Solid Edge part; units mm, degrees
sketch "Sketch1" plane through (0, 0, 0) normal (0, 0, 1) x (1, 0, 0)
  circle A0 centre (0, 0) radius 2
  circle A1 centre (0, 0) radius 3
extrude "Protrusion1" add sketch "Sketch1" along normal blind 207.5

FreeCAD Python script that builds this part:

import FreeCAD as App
import Part
import Sketcher
Q = App.Units.Quantity

doc = App.newDocument("Part")
body = doc.addObject("PartDesign::Body", "Body")

sketch1 = body.newObject("Sketcher::SketchObject", "Sketch")
sketch1.AttachmentSupport = (doc.getObject("XY_Plane"), [""])
sketch1.MapMode = "FlatFace"
sketch1.addGeometry([
    Part.Circle(App.Vector(0, 0, 0), App.Vector(0, 0, 1), 3),
    Part.Circle(App.Vector(0, 0, 0), App.Vector(0, 0, 1), 2),
], False)
sketch1.addConstraint([
    Sketcher.Constraint("Coincident", 0, 3, -1, 1),
    Sketcher.Constraint("Coincident", 1, 3, -1, 1),
    Sketcher.Constraint("Diameter", 0, Q("6 mm")),
    Sketcher.Constraint("Diameter", 1, Q("4 mm")),
])
pad1 = body.newObject("PartDesign::Pad", "Pad")
pad1.Profile = sketch1
pad1.Length = 207.5

doc.recompute()
